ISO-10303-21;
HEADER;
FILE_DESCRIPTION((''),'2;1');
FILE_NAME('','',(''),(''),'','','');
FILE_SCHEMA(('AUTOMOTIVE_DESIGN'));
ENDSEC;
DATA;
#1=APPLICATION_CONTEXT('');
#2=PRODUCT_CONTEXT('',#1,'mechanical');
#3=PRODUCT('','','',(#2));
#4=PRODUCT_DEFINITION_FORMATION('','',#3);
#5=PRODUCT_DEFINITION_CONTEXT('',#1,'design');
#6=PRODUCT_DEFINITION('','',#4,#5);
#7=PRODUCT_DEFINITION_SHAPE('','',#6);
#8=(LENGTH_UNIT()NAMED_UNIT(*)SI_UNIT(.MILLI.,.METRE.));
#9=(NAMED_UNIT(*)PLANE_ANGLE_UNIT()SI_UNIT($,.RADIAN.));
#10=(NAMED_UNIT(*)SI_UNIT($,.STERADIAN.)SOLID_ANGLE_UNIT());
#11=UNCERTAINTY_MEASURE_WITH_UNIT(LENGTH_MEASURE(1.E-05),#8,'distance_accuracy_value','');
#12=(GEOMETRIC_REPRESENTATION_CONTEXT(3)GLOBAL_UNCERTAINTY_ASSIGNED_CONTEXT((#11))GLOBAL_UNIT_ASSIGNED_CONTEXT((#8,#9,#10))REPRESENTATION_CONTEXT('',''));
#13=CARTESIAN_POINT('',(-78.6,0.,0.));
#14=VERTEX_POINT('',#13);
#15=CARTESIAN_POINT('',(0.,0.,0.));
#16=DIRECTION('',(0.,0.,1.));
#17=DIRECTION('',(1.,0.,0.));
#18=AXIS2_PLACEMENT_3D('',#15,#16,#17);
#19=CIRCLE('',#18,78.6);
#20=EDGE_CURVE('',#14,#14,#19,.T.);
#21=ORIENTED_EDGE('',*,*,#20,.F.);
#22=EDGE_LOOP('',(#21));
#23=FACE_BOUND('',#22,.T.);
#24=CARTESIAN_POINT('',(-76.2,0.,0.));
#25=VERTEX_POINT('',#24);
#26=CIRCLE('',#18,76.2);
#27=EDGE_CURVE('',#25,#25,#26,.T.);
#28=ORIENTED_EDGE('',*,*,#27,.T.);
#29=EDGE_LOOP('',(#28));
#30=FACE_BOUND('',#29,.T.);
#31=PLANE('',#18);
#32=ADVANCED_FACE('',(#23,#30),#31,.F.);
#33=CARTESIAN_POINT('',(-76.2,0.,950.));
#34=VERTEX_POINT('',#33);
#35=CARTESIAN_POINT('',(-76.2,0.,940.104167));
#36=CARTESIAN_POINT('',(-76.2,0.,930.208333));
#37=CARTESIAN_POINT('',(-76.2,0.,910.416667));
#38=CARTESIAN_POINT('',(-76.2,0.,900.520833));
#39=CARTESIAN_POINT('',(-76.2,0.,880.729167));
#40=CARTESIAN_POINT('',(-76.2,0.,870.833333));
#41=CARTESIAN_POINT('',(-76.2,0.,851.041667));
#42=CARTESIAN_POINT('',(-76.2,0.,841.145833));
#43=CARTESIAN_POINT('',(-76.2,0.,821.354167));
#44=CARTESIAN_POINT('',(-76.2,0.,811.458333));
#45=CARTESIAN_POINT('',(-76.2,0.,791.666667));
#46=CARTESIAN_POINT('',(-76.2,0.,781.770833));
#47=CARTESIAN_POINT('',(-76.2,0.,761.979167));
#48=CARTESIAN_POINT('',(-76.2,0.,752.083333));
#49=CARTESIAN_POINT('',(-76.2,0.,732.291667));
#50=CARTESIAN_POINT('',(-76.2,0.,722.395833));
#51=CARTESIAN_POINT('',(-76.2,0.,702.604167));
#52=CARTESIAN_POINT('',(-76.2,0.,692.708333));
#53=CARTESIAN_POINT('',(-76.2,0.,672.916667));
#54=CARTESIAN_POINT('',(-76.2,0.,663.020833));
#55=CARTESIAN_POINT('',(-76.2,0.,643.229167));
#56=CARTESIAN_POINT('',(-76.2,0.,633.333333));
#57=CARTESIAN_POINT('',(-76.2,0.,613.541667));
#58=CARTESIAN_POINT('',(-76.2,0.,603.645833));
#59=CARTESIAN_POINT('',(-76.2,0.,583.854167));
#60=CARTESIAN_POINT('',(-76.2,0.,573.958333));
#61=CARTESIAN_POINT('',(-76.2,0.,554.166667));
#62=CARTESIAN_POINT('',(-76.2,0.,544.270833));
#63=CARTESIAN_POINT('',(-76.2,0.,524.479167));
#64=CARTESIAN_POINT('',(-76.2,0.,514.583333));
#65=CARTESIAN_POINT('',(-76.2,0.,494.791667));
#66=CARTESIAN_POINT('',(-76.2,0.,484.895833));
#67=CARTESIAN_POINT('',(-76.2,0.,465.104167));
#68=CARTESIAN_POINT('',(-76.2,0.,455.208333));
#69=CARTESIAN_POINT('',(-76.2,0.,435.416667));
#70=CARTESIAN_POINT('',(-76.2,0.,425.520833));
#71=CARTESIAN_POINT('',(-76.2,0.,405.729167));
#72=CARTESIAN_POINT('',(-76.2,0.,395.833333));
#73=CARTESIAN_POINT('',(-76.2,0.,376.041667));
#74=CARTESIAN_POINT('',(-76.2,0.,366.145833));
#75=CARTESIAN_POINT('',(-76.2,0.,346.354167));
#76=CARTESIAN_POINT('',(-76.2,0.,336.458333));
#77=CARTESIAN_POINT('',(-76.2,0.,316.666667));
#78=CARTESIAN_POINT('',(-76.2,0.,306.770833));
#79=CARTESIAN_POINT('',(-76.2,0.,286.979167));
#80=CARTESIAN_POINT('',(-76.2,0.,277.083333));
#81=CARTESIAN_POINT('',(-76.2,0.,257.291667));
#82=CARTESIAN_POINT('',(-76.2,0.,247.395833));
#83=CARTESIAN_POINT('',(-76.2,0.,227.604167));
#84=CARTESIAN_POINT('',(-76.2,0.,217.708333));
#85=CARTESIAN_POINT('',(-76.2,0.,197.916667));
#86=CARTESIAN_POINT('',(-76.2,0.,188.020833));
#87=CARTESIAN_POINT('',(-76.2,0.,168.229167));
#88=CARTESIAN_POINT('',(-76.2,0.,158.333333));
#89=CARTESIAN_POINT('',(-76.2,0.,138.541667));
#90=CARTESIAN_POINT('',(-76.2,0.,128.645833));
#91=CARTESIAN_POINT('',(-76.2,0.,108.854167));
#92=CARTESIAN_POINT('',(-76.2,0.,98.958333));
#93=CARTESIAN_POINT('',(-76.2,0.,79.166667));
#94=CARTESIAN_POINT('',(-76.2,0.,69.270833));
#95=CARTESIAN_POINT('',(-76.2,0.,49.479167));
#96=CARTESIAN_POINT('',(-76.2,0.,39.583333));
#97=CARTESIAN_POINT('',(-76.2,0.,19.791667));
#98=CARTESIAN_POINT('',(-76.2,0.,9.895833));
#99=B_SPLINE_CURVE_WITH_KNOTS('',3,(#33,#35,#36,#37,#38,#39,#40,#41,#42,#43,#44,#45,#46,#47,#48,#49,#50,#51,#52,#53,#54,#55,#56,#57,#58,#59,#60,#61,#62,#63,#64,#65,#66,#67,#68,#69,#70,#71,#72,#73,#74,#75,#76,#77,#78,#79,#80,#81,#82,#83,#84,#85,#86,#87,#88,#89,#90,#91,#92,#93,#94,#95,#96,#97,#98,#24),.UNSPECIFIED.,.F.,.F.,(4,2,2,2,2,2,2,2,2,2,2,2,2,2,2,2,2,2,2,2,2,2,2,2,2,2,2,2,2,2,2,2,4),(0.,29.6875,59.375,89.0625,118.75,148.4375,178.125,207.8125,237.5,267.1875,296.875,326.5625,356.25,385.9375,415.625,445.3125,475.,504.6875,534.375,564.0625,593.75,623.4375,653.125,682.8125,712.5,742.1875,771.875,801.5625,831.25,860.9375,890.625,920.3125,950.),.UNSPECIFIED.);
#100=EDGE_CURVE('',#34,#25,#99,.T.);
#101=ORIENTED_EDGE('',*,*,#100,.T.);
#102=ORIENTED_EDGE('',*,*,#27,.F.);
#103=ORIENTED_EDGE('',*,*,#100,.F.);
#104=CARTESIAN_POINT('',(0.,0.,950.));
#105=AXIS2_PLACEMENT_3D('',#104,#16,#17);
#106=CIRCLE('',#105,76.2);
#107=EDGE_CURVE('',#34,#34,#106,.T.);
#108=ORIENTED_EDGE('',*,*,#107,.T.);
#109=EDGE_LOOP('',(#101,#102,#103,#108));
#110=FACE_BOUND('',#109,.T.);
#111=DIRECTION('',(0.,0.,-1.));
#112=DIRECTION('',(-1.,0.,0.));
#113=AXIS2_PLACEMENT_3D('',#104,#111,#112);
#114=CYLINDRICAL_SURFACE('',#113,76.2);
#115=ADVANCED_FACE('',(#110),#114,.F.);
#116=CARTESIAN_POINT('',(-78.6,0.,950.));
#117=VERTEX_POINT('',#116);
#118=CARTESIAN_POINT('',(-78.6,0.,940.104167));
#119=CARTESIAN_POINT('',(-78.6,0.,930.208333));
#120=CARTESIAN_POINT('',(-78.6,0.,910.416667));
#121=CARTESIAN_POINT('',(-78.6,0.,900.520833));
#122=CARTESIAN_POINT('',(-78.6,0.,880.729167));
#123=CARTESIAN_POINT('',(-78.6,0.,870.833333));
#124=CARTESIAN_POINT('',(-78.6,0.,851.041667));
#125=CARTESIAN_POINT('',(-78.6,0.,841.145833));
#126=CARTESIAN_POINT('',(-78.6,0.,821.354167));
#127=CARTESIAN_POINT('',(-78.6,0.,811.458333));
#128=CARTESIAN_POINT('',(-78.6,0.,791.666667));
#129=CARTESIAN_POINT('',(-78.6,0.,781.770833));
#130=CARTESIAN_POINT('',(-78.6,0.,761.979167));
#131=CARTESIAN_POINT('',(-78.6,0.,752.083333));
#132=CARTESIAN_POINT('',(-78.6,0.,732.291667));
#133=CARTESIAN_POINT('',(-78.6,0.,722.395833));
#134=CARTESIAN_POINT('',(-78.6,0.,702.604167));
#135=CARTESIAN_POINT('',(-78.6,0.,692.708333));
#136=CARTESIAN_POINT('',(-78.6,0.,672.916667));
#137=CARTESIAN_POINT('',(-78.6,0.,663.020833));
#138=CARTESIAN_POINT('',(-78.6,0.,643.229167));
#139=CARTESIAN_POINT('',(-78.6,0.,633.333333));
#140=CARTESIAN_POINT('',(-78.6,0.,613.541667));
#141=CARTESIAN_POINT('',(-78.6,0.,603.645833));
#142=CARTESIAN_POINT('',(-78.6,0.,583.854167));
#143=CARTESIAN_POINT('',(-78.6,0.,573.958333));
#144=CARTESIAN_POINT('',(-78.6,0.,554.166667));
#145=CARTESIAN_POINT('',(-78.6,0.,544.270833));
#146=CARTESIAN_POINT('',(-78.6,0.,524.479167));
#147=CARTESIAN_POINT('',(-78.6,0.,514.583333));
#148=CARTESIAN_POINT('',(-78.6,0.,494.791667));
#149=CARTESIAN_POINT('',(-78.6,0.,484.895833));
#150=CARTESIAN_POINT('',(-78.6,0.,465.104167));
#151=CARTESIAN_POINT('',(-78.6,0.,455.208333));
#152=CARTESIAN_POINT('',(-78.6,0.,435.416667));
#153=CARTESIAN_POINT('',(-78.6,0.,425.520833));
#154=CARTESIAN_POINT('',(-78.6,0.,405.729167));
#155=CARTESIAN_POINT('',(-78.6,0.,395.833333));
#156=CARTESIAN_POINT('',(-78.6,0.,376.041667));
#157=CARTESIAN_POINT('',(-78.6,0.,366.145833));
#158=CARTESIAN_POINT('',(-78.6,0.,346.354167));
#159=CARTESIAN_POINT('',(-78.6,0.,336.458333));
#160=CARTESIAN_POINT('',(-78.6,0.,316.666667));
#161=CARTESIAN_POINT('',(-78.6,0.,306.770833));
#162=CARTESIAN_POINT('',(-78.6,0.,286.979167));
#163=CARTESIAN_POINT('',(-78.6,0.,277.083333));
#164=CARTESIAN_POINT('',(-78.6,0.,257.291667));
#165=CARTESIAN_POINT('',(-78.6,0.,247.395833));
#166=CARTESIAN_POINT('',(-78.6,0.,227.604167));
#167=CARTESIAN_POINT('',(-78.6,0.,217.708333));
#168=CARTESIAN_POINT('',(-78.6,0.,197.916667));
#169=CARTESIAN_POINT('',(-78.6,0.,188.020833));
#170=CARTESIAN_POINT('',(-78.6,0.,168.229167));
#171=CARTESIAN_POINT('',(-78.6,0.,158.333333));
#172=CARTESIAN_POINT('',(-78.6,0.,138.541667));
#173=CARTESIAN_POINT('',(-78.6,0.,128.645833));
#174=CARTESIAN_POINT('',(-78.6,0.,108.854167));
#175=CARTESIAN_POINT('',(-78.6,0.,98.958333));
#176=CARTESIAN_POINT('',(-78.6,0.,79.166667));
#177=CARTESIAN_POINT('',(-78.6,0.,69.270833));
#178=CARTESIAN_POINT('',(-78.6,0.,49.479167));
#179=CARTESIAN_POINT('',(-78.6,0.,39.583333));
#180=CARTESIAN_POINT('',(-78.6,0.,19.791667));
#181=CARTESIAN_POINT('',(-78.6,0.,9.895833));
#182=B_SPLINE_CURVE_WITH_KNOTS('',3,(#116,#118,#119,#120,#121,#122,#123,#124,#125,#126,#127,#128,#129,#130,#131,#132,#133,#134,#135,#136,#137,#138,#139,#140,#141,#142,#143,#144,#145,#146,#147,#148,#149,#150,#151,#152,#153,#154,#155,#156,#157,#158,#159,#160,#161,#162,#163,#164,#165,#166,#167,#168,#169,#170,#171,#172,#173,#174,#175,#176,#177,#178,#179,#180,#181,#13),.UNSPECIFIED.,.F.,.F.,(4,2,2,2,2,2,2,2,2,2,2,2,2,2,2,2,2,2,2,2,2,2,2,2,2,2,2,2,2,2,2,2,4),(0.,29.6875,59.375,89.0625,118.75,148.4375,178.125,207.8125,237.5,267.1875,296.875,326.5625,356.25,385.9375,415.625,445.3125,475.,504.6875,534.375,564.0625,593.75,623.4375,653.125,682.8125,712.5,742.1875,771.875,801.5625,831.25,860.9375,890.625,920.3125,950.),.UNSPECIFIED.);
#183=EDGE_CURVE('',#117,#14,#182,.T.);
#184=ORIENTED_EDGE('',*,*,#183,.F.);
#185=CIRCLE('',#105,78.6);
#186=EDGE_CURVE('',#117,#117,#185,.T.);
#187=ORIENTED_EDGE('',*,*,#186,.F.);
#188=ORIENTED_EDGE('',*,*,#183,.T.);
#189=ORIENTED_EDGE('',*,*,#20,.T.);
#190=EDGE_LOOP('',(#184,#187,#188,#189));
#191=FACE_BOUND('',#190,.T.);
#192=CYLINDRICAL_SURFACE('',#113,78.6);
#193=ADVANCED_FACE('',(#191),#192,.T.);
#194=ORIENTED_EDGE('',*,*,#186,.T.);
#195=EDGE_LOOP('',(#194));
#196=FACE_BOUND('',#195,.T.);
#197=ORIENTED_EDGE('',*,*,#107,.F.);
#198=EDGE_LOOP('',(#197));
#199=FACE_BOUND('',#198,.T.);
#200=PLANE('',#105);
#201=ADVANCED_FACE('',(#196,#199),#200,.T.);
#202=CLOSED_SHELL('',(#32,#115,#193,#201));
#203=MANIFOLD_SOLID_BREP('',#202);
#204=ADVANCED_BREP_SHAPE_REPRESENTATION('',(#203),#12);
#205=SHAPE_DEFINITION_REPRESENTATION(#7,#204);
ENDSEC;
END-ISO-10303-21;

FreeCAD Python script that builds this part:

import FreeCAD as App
import Part
import Sketcher
from FreeCAD import Vector
Q = App.Units.Quantity

doc = App.newDocument("Part")
body = doc.addObject("PartDesign::Body", "Body")

# Sketch on XY plane
sketch1 = body.newObject("Sketcher::SketchObject", "Sketch")
sketch1.AttachmentSupport = (doc.getObject("XY_Plane"), [""])
sketch1.MapMode = "FlatFace"
sketch1.addGeometry(Part.Circle(Vector(0, 0, 0), Vector(0, 0, 1), 79), False)
sketch1.addGeometry(Part.Circle(Vector(0, 0, 0), Vector(0, 0, 1), 76), False)
sketch1.addConstraint(Sketcher.Constraint("Coincident", 0, 3, -1, 1))
sketch1.addConstraint(Sketcher.Constraint("Coincident", 1, 3, -1, 1))
sketch1.addConstraint(Sketcher.Constraint("Diameter", 0, Q("157.2 mm")))
sketch1.addConstraint(Sketcher.Constraint("Diameter", 1, Q("152.4 mm")))
pad1 = body.newObject("PartDesign::Pad", "Pad")
pad1.Profile = sketch1
pad1.Length = 950

doc.recompute()
